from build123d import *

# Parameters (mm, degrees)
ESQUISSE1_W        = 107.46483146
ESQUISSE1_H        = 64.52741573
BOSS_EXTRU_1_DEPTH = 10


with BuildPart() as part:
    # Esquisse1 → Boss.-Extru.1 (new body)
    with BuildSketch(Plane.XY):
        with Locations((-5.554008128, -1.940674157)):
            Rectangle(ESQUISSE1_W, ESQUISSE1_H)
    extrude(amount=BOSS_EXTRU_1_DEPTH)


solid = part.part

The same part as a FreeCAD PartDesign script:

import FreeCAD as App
import Part
import Sketcher
from FreeCAD import Vector
Q = App.Units.Quantity


def add_polygon(sketch, points):
    """Adds a closed chain of lines whose ends are joined by coincident constraints."""
    first, n = sketch.GeometryCount, len(points)
    for a, b in zip(points, points[1:] + points[:1]):
        sketch.addGeometry(Part.LineSegment(App.Vector(*a, 0), App.Vector(*b, 0)), False)
    for i in range(n):
        sketch.addConstraint(Sketcher.Constraint("Coincident", first + i, 2, first + (i + 1) % n, 1))

doc = App.newDocument("Part")
body = doc.addObject("PartDesign::Body", "Body")

sketch1 = body.newObject("Sketcher::SketchObject", "Sketch")
sketch1.AttachmentSupport = (doc.getObject("XY_Plane"), [""])
sketch1.MapMode = "FlatFace"
add_polygon(sketch1, [(-59.286424, 30.323034), (-59.286424, -34.204382), (48.178408, -34.204382), (48.178408, 30.323034)])
sketch1.addConstraint(Sketcher.Constraint("Vertical", 0))
sketch1.addConstraint(Sketcher.Constraint("Horizontal", 1))
sketch1.addConstraint(Sketcher.Constraint("Vertical", 2))
sketch1.addConstraint(Sketcher.Constraint("Horizontal", 3))
sketch1.addConstraint(Sketcher.Constraint("DistanceX", 1, 1, 1, 2, Q("107.464831 mm")))
sketch1.addConstraint(Sketcher.Constraint("DistanceY", 0, 2, 0, 1, Q("64.527416 mm")))
sketch1.addConstraint(Sketcher.Constraint("DistanceX", 0, 2, -1, 1, Q("59.286424 mm")))
sketch1.addConstraint(Sketcher.Constraint("DistanceY", 0, 2, -1, 1, Q("34.204382 mm")))
pad1 = body.newObject("PartDesign::Pad", "Pad")
pad1.Profile = sketch1
pad1.Length = 10

doc.recompute()
